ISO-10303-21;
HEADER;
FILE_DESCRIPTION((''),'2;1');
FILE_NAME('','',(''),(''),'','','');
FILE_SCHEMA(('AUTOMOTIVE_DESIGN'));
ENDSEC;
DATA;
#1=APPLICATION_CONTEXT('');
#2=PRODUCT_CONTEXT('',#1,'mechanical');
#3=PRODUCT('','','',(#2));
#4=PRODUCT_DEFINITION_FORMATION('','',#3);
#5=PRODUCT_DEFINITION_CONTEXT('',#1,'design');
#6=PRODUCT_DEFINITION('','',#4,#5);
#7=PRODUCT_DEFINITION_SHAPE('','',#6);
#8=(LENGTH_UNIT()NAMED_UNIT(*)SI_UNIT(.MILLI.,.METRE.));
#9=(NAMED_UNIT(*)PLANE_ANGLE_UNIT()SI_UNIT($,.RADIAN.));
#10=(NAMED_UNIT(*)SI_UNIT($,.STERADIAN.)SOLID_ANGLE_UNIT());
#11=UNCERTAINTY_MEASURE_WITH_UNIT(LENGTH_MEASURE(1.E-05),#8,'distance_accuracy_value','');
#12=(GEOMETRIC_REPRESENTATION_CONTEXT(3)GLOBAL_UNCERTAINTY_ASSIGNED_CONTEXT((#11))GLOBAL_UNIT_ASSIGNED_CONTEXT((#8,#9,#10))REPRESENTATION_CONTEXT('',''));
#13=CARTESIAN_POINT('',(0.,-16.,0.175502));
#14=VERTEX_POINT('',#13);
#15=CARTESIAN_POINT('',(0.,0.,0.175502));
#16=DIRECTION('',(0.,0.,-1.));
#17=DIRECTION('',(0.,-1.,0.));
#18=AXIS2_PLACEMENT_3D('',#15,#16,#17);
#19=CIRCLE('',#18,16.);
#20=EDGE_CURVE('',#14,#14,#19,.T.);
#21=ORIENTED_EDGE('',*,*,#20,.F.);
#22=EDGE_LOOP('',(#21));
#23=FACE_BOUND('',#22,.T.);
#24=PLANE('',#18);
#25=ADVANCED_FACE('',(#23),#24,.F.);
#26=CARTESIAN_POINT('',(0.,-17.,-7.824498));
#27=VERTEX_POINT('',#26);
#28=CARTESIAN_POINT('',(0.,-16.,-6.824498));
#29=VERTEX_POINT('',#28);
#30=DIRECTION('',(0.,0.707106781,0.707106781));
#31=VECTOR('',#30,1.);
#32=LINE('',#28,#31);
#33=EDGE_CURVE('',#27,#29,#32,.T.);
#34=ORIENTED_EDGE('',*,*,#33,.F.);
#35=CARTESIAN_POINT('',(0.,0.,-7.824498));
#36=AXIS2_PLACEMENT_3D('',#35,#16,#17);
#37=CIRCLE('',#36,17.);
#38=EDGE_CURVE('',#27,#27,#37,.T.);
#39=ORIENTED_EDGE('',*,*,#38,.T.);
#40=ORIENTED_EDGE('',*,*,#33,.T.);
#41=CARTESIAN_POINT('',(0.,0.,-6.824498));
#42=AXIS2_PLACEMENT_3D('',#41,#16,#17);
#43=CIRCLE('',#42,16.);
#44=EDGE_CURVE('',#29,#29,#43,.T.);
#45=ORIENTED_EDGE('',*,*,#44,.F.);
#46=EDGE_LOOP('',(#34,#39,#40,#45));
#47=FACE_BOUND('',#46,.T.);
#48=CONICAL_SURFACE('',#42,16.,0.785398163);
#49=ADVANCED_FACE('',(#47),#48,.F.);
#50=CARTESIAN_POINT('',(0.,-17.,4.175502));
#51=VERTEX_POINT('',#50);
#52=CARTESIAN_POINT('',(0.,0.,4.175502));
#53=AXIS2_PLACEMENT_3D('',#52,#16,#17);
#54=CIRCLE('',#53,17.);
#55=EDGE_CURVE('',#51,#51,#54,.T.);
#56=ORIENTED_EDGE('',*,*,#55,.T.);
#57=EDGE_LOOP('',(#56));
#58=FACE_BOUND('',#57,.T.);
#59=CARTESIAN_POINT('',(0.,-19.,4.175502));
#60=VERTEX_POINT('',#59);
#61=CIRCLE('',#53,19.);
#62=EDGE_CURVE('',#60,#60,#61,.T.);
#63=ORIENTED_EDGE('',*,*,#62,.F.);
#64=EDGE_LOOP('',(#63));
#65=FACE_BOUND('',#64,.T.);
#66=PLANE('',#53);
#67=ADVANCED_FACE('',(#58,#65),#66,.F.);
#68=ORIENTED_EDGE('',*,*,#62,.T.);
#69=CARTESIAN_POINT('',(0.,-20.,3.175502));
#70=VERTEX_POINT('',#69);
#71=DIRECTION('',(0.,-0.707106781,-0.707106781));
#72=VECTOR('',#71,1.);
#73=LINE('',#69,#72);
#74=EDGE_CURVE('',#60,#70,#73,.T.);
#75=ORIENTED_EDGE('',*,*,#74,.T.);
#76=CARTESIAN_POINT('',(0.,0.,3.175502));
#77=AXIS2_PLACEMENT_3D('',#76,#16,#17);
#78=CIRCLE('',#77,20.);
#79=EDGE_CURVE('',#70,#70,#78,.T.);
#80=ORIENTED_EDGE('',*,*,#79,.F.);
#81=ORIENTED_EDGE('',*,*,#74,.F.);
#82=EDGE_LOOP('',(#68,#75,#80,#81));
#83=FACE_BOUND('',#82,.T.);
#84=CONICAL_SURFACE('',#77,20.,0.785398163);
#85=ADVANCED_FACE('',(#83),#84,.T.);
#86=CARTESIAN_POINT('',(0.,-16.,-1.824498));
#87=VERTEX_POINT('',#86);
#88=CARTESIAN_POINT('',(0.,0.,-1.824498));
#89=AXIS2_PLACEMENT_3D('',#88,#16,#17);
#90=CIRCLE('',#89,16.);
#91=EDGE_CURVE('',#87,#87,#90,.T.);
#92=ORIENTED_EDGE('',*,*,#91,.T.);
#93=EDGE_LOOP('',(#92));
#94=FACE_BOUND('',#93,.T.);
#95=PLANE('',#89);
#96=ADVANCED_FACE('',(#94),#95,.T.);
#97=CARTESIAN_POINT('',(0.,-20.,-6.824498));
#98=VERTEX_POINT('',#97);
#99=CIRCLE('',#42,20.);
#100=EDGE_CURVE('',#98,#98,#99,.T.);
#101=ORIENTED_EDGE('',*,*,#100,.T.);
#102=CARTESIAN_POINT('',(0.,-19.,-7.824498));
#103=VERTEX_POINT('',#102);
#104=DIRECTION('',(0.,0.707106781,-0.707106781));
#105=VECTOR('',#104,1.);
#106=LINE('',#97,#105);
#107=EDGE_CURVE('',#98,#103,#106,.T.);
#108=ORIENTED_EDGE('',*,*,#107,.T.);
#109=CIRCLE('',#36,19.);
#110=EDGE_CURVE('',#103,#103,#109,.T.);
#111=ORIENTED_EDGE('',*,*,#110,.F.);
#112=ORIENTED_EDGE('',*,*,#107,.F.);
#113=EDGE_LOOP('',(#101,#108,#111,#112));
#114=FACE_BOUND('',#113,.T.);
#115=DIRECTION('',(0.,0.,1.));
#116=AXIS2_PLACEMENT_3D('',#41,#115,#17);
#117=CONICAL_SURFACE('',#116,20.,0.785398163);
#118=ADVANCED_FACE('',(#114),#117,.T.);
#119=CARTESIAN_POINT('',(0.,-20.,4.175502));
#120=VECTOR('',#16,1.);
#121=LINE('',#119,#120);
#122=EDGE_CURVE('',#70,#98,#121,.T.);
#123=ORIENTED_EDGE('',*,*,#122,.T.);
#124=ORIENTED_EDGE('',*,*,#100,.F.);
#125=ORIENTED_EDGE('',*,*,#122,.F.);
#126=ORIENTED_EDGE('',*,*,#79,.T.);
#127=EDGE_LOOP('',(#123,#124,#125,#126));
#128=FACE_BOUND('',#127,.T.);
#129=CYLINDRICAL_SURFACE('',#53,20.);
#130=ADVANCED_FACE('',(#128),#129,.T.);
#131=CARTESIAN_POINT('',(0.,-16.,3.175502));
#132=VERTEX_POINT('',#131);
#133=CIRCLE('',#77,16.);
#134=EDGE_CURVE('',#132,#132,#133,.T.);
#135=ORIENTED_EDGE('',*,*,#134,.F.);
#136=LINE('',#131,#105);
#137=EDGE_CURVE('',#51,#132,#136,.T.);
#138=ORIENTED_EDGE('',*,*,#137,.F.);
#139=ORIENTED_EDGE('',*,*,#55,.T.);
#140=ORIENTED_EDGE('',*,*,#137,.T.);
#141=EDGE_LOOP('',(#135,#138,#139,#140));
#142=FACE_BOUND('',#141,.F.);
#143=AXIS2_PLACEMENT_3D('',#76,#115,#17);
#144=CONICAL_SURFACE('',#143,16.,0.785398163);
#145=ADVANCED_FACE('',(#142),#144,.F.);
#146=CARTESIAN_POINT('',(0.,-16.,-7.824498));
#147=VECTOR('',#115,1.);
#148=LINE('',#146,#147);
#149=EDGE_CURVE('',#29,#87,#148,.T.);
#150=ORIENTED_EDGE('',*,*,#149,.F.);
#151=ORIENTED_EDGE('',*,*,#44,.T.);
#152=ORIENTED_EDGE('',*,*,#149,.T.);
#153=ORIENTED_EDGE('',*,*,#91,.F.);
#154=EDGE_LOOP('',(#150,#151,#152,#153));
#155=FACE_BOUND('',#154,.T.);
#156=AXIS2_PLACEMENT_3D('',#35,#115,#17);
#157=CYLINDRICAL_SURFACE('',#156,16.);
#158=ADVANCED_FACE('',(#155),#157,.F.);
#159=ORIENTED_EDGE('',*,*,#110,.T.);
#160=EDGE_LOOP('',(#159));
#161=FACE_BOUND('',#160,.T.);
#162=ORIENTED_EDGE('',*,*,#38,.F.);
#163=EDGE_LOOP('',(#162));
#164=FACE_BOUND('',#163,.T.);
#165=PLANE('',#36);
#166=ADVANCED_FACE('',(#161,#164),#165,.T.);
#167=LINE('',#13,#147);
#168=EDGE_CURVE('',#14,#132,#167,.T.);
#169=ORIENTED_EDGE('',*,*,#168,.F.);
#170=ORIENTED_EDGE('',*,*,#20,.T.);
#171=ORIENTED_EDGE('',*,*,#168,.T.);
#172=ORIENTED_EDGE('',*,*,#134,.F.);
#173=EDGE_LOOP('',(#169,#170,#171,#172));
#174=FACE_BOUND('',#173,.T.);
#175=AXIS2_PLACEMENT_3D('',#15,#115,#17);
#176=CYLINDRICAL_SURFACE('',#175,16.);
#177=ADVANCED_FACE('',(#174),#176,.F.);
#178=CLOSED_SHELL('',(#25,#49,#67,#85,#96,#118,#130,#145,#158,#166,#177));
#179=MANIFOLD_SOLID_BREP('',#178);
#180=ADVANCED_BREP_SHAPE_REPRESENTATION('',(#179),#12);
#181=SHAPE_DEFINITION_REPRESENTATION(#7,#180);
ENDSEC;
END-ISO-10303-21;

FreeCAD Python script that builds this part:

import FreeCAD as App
import Part
import Sketcher


def edges_at(feature, points):
    """Names of the edges that pass closest to the given points."""
    edges = feature.Shape.Edges
    near = lambda p: min(range(len(edges)), key=lambda i: edges[i].distToShape(Part.Vertex(*p))[0])
    return sorted({f"Edge{near(p) + 1}" for p in points})

doc = App.newDocument("Part")
body = doc.addObject("PartDesign::Body", "Body")

sketch1 = body.newObject("Sketcher::SketchObject", "Sketch")
sketch1.AttachmentSupport = (doc.getObject("YZ_Plane"), [""])
sketch1.MapMode = "FlatFace"
sketch1.addGeometry([
    Part.LineSegment(App.Vector(-16, 4.2, 0), App.Vector(-20, 4.2, 0)),
    Part.LineSegment(App.Vector(-20, 4.2, 0), App.Vector(-20, -7.8, 0)),
    Part.LineSegment(App.Vector(-20, -7.8, 0), App.Vector(-16, -7.8, 0)),
    Part.LineSegment(App.Vector(-16, -7.8, 0), App.Vector(-16, -1.8, 0)),
    Part.LineSegment(App.Vector(-16, -1.8, 0), App.Vector(0, -1.8, 0)),
    Part.LineSegment(App.Vector(0, -1.8, 0), App.Vector(0, 0.2, 0)),
    Part.LineSegment(App.Vector(0, 0.2, 0), App.Vector(-16, 0.2, 0)),
    Part.LineSegment(App.Vector(-16, 0.2, 0), App.Vector(-16, 4.2, 0)),
], False)
sketch1.addConstraint([
    Sketcher.Constraint("Coincident", 0, 2, 1, 1),
    Sketcher.Constraint("Coincident", 1, 2, 2, 1),
    Sketcher.Constraint("Coincident", 2, 2, 3, 1),
    Sketcher.Constraint("Coincident", 3, 2, 4, 1),
    Sketcher.Constraint("Coincident", 4, 2, 5, 1),
    Sketcher.Constraint("Coincident", 5, 2, 6, 1),
    Sketcher.Constraint("Coincident", 6, 2, 7, 1),
    Sketcher.Constraint("Coincident", 7, 2, 0, 1),
    Sketcher.Constraint("Horizontal", 0),
    Sketcher.Constraint("Vertical", 1),
    Sketcher.Constraint("Horizontal", 2),
    Sketcher.Constraint("Vertical", 3),
    Sketcher.Constraint("Horizontal", 4),
    Sketcher.Constraint("Vertical", 5),
    Sketcher.Constraint("Horizontal", 6),
    Sketcher.Constraint("Vertical", 7),
    Sketcher.Constraint("PointOnObject", 4, 2, -2),
    Sketcher.Constraint("Vertical", 3, 2, 6, 2),
    Sketcher.Constraint("Equal", 2, 7),
    Sketcher.Constraint("DistanceX", 0, 2, 0, 1, 4.0),
    Sketcher.Constraint("DistanceX", 4, 1, 4, 2, 16.0),
    Sketcher.Constraint("DistanceY", 1, 2, 1, 1, 12.0),
    Sketcher.Constraint("DistanceY", 3, 1, 3, 2, 6.0),
    Sketcher.Constraint("DistanceY", -1, 1, 0, 2, 4.175502),
])
revolution = body.newObject("PartDesign::Revolution", "Revolution")
revolution.Profile = sketch1
revolution.ReferenceAxis = (sketch1, ["V_Axis"])
revolution.Angle = 360
doc.recompute()

chamfer = body.newObject("PartDesign::Chamfer", "Chamfer")
chamfer.Base = (revolution, edges_at(revolution, [
    (0, 16, 4.176),
    (0, 20, 4.176),
    (0, 20, -7.824),
    (0, 16, -7.824),
]))
chamfer.Size = 1

doc.recompute()
